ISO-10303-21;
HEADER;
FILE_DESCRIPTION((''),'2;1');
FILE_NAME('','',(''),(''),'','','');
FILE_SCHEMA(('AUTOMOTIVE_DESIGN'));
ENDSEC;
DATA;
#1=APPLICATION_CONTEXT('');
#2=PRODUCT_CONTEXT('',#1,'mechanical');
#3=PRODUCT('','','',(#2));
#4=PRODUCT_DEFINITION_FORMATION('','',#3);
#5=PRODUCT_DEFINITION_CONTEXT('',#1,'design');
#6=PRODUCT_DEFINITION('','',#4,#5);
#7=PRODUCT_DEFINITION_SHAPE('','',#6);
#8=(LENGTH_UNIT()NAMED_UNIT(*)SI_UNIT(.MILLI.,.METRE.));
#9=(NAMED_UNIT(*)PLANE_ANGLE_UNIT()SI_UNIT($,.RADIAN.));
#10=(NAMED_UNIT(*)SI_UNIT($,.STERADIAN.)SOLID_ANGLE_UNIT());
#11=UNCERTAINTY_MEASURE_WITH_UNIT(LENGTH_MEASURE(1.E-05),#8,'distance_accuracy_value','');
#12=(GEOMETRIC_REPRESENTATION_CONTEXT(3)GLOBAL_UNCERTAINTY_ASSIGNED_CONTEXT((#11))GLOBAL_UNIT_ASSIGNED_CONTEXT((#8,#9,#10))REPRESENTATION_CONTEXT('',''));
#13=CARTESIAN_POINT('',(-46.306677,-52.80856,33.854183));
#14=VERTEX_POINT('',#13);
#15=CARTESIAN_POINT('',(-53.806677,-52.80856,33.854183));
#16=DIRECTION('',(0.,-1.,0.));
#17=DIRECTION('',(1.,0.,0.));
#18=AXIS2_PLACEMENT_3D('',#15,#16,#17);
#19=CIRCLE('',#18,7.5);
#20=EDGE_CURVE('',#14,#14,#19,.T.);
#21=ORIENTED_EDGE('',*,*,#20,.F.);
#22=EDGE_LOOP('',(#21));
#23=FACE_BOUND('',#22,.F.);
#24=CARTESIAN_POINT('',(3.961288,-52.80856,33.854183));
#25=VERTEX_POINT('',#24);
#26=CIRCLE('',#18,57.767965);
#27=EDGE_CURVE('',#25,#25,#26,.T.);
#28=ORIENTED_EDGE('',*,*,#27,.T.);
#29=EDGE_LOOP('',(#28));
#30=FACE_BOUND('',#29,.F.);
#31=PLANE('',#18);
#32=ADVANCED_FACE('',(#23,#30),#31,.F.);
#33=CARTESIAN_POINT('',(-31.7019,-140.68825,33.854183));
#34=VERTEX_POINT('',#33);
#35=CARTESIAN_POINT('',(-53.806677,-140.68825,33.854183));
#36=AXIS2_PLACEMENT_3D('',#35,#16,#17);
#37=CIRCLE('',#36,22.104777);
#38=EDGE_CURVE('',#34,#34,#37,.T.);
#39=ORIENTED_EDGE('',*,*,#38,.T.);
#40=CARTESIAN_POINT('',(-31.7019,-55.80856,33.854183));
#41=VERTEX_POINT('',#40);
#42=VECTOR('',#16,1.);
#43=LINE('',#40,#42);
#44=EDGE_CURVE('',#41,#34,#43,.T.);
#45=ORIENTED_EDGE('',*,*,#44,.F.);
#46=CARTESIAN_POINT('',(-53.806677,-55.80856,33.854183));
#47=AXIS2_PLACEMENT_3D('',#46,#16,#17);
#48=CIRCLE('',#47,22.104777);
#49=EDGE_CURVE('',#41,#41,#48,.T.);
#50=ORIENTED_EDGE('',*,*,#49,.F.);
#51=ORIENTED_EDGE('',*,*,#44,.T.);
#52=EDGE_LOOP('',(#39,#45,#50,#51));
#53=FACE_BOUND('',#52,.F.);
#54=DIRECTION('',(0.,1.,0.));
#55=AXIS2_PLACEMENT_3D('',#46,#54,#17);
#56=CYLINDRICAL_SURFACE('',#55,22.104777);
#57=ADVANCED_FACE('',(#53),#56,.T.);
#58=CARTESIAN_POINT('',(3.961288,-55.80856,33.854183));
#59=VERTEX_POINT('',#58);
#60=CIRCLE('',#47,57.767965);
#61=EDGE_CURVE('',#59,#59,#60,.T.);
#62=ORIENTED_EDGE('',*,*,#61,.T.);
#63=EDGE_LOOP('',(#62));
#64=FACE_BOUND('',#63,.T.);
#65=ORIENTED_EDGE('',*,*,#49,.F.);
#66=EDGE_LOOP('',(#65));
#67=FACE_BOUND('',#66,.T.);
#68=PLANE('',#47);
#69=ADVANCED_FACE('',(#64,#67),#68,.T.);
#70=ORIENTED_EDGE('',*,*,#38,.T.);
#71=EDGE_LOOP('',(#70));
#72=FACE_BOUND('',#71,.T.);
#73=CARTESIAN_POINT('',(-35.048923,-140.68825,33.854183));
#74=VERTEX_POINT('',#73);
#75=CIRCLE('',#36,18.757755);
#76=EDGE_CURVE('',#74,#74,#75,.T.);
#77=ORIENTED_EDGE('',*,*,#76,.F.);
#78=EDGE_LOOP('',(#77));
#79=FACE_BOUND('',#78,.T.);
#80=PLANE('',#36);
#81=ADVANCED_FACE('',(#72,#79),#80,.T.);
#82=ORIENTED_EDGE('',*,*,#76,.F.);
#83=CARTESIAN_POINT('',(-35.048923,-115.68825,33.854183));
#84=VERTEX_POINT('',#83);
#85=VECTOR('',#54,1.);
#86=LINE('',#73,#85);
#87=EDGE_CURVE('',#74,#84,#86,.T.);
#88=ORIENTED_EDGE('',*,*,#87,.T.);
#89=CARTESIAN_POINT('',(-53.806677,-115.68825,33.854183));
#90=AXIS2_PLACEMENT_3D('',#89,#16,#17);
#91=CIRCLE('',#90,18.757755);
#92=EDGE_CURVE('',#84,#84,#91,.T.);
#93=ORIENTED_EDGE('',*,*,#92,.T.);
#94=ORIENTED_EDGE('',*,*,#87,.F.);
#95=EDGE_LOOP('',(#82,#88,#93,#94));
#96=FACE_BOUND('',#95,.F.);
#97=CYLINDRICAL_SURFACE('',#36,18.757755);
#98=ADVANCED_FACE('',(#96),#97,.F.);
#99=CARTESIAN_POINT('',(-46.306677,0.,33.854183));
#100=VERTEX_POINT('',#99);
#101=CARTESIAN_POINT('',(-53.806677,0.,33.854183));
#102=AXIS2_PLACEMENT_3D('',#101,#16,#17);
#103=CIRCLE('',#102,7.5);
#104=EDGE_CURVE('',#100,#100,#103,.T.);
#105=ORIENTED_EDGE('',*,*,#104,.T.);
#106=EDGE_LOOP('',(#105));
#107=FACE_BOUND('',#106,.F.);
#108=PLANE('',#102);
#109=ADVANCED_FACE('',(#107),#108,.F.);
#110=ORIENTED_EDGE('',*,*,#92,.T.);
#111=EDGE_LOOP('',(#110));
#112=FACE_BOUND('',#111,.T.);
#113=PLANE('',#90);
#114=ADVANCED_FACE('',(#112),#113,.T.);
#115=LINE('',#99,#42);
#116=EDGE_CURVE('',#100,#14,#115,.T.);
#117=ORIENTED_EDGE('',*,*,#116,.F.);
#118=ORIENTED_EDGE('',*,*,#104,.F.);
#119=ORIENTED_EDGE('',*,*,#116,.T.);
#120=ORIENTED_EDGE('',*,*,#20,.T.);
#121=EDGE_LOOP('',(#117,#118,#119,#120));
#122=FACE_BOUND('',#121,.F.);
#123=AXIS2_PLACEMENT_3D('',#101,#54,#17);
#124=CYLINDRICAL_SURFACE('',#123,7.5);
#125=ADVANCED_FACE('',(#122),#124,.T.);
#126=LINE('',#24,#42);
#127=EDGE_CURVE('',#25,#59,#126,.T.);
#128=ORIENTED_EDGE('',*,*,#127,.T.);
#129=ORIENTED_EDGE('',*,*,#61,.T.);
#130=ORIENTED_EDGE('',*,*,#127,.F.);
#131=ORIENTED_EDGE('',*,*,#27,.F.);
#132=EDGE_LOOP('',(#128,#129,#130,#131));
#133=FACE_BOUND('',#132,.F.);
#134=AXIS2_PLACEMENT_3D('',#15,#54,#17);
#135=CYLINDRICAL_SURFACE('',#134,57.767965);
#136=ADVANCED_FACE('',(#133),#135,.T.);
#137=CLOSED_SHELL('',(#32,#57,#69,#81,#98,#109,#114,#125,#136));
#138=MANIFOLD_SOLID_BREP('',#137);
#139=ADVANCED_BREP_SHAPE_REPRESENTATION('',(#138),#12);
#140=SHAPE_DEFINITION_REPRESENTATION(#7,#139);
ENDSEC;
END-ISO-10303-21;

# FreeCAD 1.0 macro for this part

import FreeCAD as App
import Part
import Sketcher

doc = App.newDocument("Part")
params = doc.addObject("Spreadsheet::Sheet", "Params")
for row, (alias, value) in enumerate([
    ("sketch1_diameter", "15 mm"),
    ("pad1_length", "52.80856 mm"),
    ("pad2_length", "3 mm"),
    ("pad3_length", "84.87969 mm"),
    ("pocket1_length", "25 mm"),
], start=1):
    params.set(f"A{row}", alias)
    params.set(f"B{row}", "=" + value)
    params.setAlias(f"B{row}", alias)

body = doc.addObject("PartDesign::Body", "Body")

# Sketch on XZ plane
sketch1 = body.newObject("Sketcher::SketchObject", "Sketch")
sketch1.AttachmentSupport = (doc.getObject("XZ_Plane"), [""])
sketch1.MapMode = "FlatFace"
sketch1.addGeometry(Part.Circle(App.Vector(-54, 34, 0), App.Vector(0, 0, 1), 8), False)
sketch1.addConstraint([
    Sketcher.Constraint("Diameter", 0, 15.0),
    Sketcher.Constraint("DistanceX", 0, 3, -1, 1, 53.806677),
    Sketcher.Constraint("DistanceY", -1, 1, 0, 3, 33.854183),
])
sketch1.setExpression("Constraints[0]", "Params.sketch1_diameter")
pad1 = body.newObject("PartDesign::Pad", "Pad")
pad1.Profile = sketch1
pad1.setExpression("Length", "Params.pad1_length")

# Sketch on XZ plane
sketch2 = body.newObject("Sketcher::SketchObject", "Sketch001")
sketch2.AttachmentSupport = (doc.getObject("XZ_Plane"), [""])
sketch2.MapMode = "FlatFace"
sketch2.AttachmentOffset = App.Placement(App.Vector(0, 0, 52.80856), App.Rotation())
sketch2.addGeometry(Part.Circle(App.Vector(-54, 34, 0), App.Vector(0, 0, 1), 58), False)
sketch2.addConstraint([
    Sketcher.Constraint("Diameter", 0, 115.535931),
    Sketcher.Constraint("DistanceX", 0, 3, -1, 1, 53.806677),
    Sketcher.Constraint("DistanceY", -1, 1, 0, 3, 33.854183),
])
pad2 = body.newObject("PartDesign::Pad", "Pad001")
pad2.Profile = sketch2
pad2.setExpression("Length", "Params.pad2_length")

# Sketch on XZ plane
sketch3 = body.newObject("Sketcher::SketchObject", "Sketch002")
sketch3.AttachmentSupport = (doc.getObject("XZ_Plane"), [""])
sketch3.MapMode = "FlatFace"
sketch3.AttachmentOffset = App.Placement(App.Vector(0, 0, 55.80856), App.Rotation())
sketch3.addGeometry(Part.Circle(App.Vector(-54, 34, 0), App.Vector(0, 0, 1), 22), False)
sketch3.addConstraint([
    Sketcher.Constraint("Diameter", 0, 44.209554),
    Sketcher.Constraint("DistanceX", 0, 3, -1, 1, 53.806677),
    Sketcher.Constraint("DistanceY", -1, 1, 0, 3, 33.854183),
])
pad3 = body.newObject("PartDesign::Pad", "Pad002")
pad3.Profile = sketch3
pad3.setExpression("Length", "Params.pad3_length")

# Sketch on XZ plane
sketch4 = body.newObject("Sketcher::SketchObject", "Sketch003")
sketch4.AttachmentSupport = (doc.getObject("XZ_Plane"), [""])
sketch4.MapMode = "FlatFace"
sketch4.AttachmentOffset = App.Placement(App.Vector(0, 0, 140.68825), App.Rotation())
sketch4.addGeometry(Part.Circle(App.Vector(-54, 34, 0), App.Vector(0, 0, 1), 19), False)
sketch4.addConstraint([
    Sketcher.Constraint("Diameter", 0, 37.515509),
    Sketcher.Constraint("DistanceX", 0, 3, -1, 1, 53.806677),
    Sketcher.Constraint("DistanceY", -1, 1, 0, 3, 33.854183),
])
pocket1 = body.newObject("PartDesign::Pocket", "Pocket")
pocket1.Profile = sketch4
pocket1.setExpression("Length", "Params.pocket1_length")

doc.recompute()
